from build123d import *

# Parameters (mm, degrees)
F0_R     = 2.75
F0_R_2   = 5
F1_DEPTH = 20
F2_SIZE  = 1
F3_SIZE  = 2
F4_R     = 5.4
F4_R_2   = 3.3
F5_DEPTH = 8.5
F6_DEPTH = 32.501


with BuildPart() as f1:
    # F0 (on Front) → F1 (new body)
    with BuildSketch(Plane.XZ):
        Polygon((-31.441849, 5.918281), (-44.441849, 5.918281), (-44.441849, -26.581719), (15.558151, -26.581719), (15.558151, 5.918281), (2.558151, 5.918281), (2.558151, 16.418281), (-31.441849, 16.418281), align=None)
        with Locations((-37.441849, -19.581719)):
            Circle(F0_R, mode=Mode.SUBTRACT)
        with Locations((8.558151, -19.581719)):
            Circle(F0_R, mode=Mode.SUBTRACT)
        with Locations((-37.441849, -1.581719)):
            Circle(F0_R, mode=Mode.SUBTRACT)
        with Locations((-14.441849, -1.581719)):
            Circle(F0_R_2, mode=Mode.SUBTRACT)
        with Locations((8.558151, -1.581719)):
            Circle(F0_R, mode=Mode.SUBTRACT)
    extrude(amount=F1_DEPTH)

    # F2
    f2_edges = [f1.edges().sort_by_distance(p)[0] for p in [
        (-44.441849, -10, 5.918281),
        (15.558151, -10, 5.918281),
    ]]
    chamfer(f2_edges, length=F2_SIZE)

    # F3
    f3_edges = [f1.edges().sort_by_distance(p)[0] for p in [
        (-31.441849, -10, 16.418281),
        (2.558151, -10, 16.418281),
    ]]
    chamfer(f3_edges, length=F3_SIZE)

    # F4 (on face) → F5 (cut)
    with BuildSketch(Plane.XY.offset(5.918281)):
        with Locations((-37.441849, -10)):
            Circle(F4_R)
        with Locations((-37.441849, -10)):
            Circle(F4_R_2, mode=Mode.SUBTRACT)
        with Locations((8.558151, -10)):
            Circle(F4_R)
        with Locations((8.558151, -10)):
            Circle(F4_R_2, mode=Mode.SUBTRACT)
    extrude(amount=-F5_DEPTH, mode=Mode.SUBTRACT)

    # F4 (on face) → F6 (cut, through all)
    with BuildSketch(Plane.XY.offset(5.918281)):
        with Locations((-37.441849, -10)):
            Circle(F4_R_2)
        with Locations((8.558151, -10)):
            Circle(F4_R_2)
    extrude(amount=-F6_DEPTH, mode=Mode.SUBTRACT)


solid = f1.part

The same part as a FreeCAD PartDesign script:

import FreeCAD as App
import Part
import Sketcher


def edges_at(feature, points):
    """Names of the edges that pass closest to the given points."""
    edges = feature.Shape.Edges
    near = lambda p: min(range(len(edges)), key=lambda i: edges[i].distToShape(Part.Vertex(*p))[0])
    return sorted({f"Edge{near(p) + 1}" for p in points})


def add_polygon(sketch, points):
    """Adds a closed chain of lines whose ends are joined by coincident constraints."""
    first, n = sketch.GeometryCount, len(points)
    for a, b in zip(points, points[1:] + points[:1]):
        sketch.addGeometry(Part.LineSegment(App.Vector(*a, 0), App.Vector(*b, 0)), False)
    for i in range(n):
        sketch.addConstraint(Sketcher.Constraint("Coincident", first + i, 2, first + (i + 1) % n, 1))

doc = App.newDocument("Part")
body = doc.addObject("PartDesign::Body", "Body")

# Sketch on XZ plane
sketch1 = doc.addObject("Sketcher::SketchObject", "Sketch")
body.addObject(sketch1)
sketch1.AttachmentSupport = (doc.XZ_Plane, [""])
sketch1.MapMode = "FlatFace"
add_polygon(sketch1, [(-31.441849, 5.918281), (-44.441849, 5.918281), (-44.441849, -26.581719), (15.558151, -26.581719), (15.558151, 5.918281), (2.558151, 5.918281), (2.558151, 16.418281), (-31.441849, 16.418281)])  # lines 0-7
sketch1.addGeometry(Part.Circle(App.Vector(-37.441849, -19.581719, 0), App.Vector(0, 0, 1), 2.75), False)  # 8
sketch1.addGeometry(Part.Circle(App.Vector(8.558151, -19.581719, 0), App.Vector(0, 0, 1), 2.75), False)  # 9
sketch1.addGeometry(Part.Circle(App.Vector(-37.441849, -1.581719, 0), App.Vector(0, 0, 1), 2.75), False)  # 10
sketch1.addGeometry(Part.Circle(App.Vector(-14.441849, -1.581719, 0), App.Vector(0, 0, 1), 5), False)  # 11
sketch1.addGeometry(Part.Circle(App.Vector(8.558151, -1.581719, 0), App.Vector(0, 0, 1), 2.75), False)  # 12
sketch1.addConstraint([
    Sketcher.Constraint("Horizontal", 0),
    Sketcher.Constraint("Vertical", 1),
    Sketcher.Constraint("Horizontal", 2),
    Sketcher.Constraint("Vertical", 3),
    Sketcher.Constraint("Horizontal", 4),
    Sketcher.Constraint("Vertical", 5),
    Sketcher.Constraint("Horizontal", 6),
    Sketcher.Constraint("Vertical", 7),
    Sketcher.Constraint("Equal", 8, 9),
    Sketcher.Constraint("Equal", 9, 10),
    Sketcher.Constraint("Equal", 10, 12),
    Sketcher.Constraint("Horizontal", 8, 3, 9, 3),
    Sketcher.Constraint("Horizontal", 10, 3, 11, 3),
    Sketcher.Constraint("Horizontal", 11, 3, 12, 3),
    Sketcher.Constraint("Horizontal", 0, 2, 3, 2),
    Sketcher.Constraint("Vertical", 8, 3, 10, 3),
    Sketcher.Constraint("Vertical", 9, 3, 12, 3),
    Sketcher.Constraint("Equal", 0, 4),
    Sketcher.Constraint("Diameter", 11, 10.0),
    Sketcher.Constraint("Diameter", 8, 5.5),
    Sketcher.Constraint("DistanceX", 0, 2, 0, 1, 13.0),
    Sketcher.Constraint("DistanceX", 2, 1, 2, 2, 60.0),
    Sketcher.Constraint("DistanceY", 1, 2, 1, 1, 32.5),
    Sketcher.Constraint("DistanceY", 5, 1, 5, 2, 10.5),
    Sketcher.Constraint("DistanceX", 8, 3, 9, 3, 46.0),
    Sketcher.Constraint("DistanceY", 8, 3, 10, 3, 18.0),
    Sketcher.Constraint("DistanceX", 10, 3, 11, 3, 23.0),
    Sketcher.Constraint("DistanceX", 0, 2, 10, 3, 7.0),
    Sketcher.Constraint("DistanceY", 1, 2, 8, 3, 7.0),
    Sketcher.Constraint("DistanceX", 8, 3, -1, 1, 37.441849),
    Sketcher.Constraint("DistanceY", 8, 3, -1, 1, 19.581719),
])
pad1 = doc.addObject("PartDesign::Pad", "Pad")
body.addObject(pad1)
pad1.Profile = sketch1
pad1.Length = 20
doc.recompute()

chamfer = doc.addObject("PartDesign::Chamfer", "Chamfer")
body.addObject(chamfer)
chamfer.Base = (pad1, edges_at(pad1, [(-44.442, -10, 5.918), (15.558, -10, 5.918)]))
chamfer.Size = 1
doc.recompute()

chamfer2 = doc.addObject("PartDesign::Chamfer", "Chamfer001")
body.addObject(chamfer2)
chamfer2.Base = (chamfer, edges_at(chamfer, [(-31.442, -10, 16.418), (2.558, -10, 16.418)]))
chamfer2.Size = 2

# Sketch on XY plane
sketch2 = doc.addObject("Sketcher::SketchObject", "Sketch001")
body.addObject(sketch2)
sketch2.AttachmentSupport = (doc.XY_Plane, [""])
sketch2.MapMode = "FlatFace"
sketch2.AttachmentOffset = App.Placement(App.Vector(0, 0, 5.918281), App.Rotation())
sketch2.addGeometry([
    Part.Circle(App.Vector(-37.441849, -10, 0), App.Vector(0, 0, 1), 5.4),
    Part.Circle(App.Vector(-37.441849, -10, 0), App.Vector(0, 0, 1), 3.3),
    Part.Circle(App.Vector(8.558151, -10, 0), App.Vector(0, 0, 1), 5.4),
    Part.Circle(App.Vector(8.558151, -10, 0), App.Vector(0, 0, 1), 3.3),
], False)
sketch2.addConstraint([
    Sketcher.Constraint("Coincident", 1, 3, 0, 3),
    Sketcher.Constraint("Coincident", 3, 3, 2, 3),
    Sketcher.Constraint("Equal", 0, 2),
    Sketcher.Constraint("Equal", 1, 3),
    Sketcher.Constraint("Horizontal", 1, 3, 2, 3),
    Sketcher.Constraint("Diameter", 0, 10.8),
    Sketcher.Constraint("Diameter", 1, 6.6),
    Sketcher.Constraint("DistanceY", 0, 3, -1, 1, 10.0),
    Sketcher.Constraint("DistanceX", 0, 3, 2, 3, 46.0),
    Sketcher.Constraint("DistanceX", 0, 3, -1, 1, 37.441849),
])
pocket1 = doc.addObject("PartDesign::Pocket", "Pocket")
body.addObject(pocket1)
pocket1.Profile = sketch2
pocket1.Length = 8.5

# Sketch on XY plane
sketch3 = doc.addObject("Sketcher::SketchObject", "Sketch002")
body.addObject(sketch3)
sketch3.AttachmentSupport = (doc.XY_Plane, [""])
sketch3.MapMode = "FlatFace"
sketch3.AttachmentOffset = App.Placement(App.Vector(0, 0, 5.918281), App.Rotation())
sketch3.addGeometry([
    Part.Circle(App.Vector(-37.441849, -10, 0), App.Vector(0, 0, 1), 3.3),
    Part.Circle(App.Vector(8.558151, -10, 0), App.Vector(0, 0, 1), 3.3),
], False)
sketch3.addConstraint([
    Sketcher.Constraint("Equal", 0, 1),
    Sketcher.Constraint("Horizontal", 0, 3, 1, 3),
    Sketcher.Constraint("Diameter", 0, 6.6),
    Sketcher.Constraint("DistanceY", 0, 3, -1, 1, 10.0),
    Sketcher.Constraint("DistanceX", 0, 3, 1, 3, 46.0),
    Sketcher.Constraint("DistanceX", 0, 3, -1, 1, 37.441849),
])
pocket2 = doc.addObject("PartDesign::Pocket", "Pocket001")
body.addObject(pocket2)
pocket2.Profile = sketch3
pocket2.Type = "ThroughAll"

doc.recompute()
